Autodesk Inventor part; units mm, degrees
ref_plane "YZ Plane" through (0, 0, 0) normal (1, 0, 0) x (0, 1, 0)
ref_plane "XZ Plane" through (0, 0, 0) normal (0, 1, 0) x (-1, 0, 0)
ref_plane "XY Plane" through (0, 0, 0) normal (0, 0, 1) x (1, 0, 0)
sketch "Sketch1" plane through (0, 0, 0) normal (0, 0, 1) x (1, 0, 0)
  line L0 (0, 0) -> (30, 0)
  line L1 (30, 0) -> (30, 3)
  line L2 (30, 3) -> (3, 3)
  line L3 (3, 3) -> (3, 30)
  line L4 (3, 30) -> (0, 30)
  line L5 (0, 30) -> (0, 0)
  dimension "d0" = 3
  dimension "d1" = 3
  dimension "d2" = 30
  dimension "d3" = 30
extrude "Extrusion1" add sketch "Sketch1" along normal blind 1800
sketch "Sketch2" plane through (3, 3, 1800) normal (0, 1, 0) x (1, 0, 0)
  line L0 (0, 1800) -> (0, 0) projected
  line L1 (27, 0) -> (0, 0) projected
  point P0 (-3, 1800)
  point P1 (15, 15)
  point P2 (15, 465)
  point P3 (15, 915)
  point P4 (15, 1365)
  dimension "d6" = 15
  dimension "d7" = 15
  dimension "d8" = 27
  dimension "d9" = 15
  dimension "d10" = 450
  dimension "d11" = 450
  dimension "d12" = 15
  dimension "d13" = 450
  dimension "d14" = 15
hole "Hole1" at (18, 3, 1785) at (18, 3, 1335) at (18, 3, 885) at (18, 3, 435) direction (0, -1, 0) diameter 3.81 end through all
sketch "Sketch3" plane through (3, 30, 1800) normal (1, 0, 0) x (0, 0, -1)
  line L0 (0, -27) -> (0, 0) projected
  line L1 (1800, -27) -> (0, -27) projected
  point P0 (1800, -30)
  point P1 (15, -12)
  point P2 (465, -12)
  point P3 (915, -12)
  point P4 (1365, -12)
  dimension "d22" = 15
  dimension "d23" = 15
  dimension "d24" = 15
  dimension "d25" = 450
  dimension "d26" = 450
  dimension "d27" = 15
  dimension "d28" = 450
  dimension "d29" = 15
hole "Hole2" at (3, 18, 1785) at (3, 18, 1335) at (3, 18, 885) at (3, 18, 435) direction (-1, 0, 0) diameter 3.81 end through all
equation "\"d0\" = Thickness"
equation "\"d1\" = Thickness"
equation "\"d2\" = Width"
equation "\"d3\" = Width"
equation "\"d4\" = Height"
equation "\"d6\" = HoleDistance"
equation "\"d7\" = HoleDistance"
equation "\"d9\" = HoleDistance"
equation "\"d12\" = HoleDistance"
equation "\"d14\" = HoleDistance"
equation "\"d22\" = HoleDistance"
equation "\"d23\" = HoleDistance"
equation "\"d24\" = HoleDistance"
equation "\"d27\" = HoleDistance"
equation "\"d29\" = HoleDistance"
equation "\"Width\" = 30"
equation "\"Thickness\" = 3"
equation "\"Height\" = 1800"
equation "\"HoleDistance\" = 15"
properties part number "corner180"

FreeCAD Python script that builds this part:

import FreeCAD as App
import Part
import Sketcher
Q = App.Units.Quantity


def add_polygon(sketch, points):
    """Adds a closed chain of lines whose ends are joined by coincident constraints."""
    first, n = sketch.GeometryCount, len(points)
    for a, b in zip(points, points[1:] + points[:1]):
        sketch.addGeometry(Part.LineSegment(App.Vector(*a, 0), App.Vector(*b, 0)), False)
    for i in range(n):
        sketch.addConstraint(Sketcher.Constraint("Coincident", first + i, 2, first + (i + 1) % n, 1))

doc = App.newDocument("Part")
body = doc.addObject("PartDesign::Body", "Body")

# Sketch on XY plane
sketch1 = body.newObject("Sketcher::SketchObject", "Sketch")
sketch1.AttachmentSupport = (doc.getObject("XY_Plane"), [""])
sketch1.MapMode = "FlatFace"
add_polygon(sketch1, [(0, 30), (0, 0), (30, 0), (30, 3), (3, 3), (3, 30)])  # lines 0-5
sketch1.addConstraint(Sketcher.Constraint("Vertical", 0))
sketch1.addConstraint(Sketcher.Constraint("Horizontal", 1))
sketch1.addConstraint(Sketcher.Constraint("Vertical", 2))
sketch1.addConstraint(Sketcher.Constraint("Horizontal", 3))
sketch1.addConstraint(Sketcher.Constraint("Vertical", 4))
sketch1.addConstraint(Sketcher.Constraint("Horizontal", 5))
sketch1.addConstraint(Sketcher.Constraint("Coincident", 0, 2, -1, 1))
sketch1.addConstraint(Sketcher.Constraint("Equal", 1, 0))
sketch1.addConstraint(Sketcher.Constraint("Equal", 5, 2))
sketch1.addConstraint(Sketcher.Constraint("DistanceX", 1, 1, 1, 2, Q("1.1811 in")))
sketch1.addConstraint(Sketcher.Constraint("DistanceX", 5, 2, 5, 1, Q("0.1181 in")))
pad1 = body.newObject("PartDesign::Pad", "Pad")
pad1.Profile = sketch1
pad1.Length = 1800

# Sketch on XZ plane
sketch2 = body.newObject("Sketcher::SketchObject", "Sketch001")
sketch2.AttachmentSupport = (doc.getObject("XZ_Plane"), [""])
sketch2.MapMode = "FlatFace"
sketch2.AttachmentOffset = App.Placement(App.Vector(0, 0, -0.1181102 * 25.4), App.Rotation())
sketch2.addGeometry(Part.Circle(App.Vector(18, 1785, 0), App.Vector(0, 0, 1), 1.9), False)
sketch2.addGeometry(Part.Circle(App.Vector(18, 1335, 0), App.Vector(0, 0, 1), 1.9), False)
sketch2.addGeometry(Part.Circle(App.Vector(18, 885, 0), App.Vector(0, 0, 1), 1.9), False)
sketch2.addGeometry(Part.Circle(App.Vector(18, 435, 0), App.Vector(0, 0, 1), 1.9), False)
sketch2.addConstraint(Sketcher.Constraint("Equal", 0, 1))
sketch2.addConstraint(Sketcher.Constraint("Equal", 1, 2))
sketch2.addConstraint(Sketcher.Constraint("Equal", 2, 3))
sketch2.addConstraint(Sketcher.Constraint("Vertical", 0, 3, 1, 3))
sketch2.addConstraint(Sketcher.Constraint("Vertical", 1, 3, 2, 3))
sketch2.addConstraint(Sketcher.Constraint("Vertical", 2, 3, 3, 3))
sketch2.addConstraint(Sketcher.Constraint("Diameter", 0, Q("0.15 in")))
sketch2.addConstraint(Sketcher.Constraint("DistanceY", -1, 1, 0, 3, Q("70.2756 in")))
sketch2.addConstraint(Sketcher.Constraint("DistanceY", 3, 3, 0, 3, Q("53.1496 in")))
sketch2.addConstraint(Sketcher.Constraint("DistanceX", -1, 1, 0, 3, 18.0))
sketch2.addConstraint(Sketcher.Constraint("DistanceY", -1, 1, 1, 3, 1335.0))
sketch2.addConstraint(Sketcher.Constraint("DistanceY", -1, 1, 2, 3, 885.0))
doc.recompute()
hole = body.newObject("PartDesign::Hole", "Hole")
hole.Profile = sketch2
hole.ThreadType = "None"
hole.Diameter = Q("0.15 in")
hole.DepthType = "ThroughAll"
hole.Reversed = True

# Sketch on YZ plane
sketch3 = body.newObject("Sketcher::SketchObject", "Sketch002")
sketch3.AttachmentSupport = (doc.getObject("YZ_Plane"), [""])
sketch3.MapMode = "FlatFace"
sketch3.AttachmentOffset = App.Placement(App.Vector(0, 0, 0.1181102 * 25.4), App.Rotation())
sketch3.addGeometry(Part.Circle(App.Vector(18, 1785, 0), App.Vector(0, 0, 1), 1.9), False)
sketch3.addGeometry(Part.Circle(App.Vector(18, 1335, 0), App.Vector(0, 0, 1), 1.9), False)
sketch3.addGeometry(Part.Circle(App.Vector(18, 885, 0), App.Vector(0, 0, 1), 1.9), False)
sketch3.addGeometry(Part.Circle(App.Vector(18, 435, 0), App.Vector(0, 0, 1), 1.9), False)
sketch3.addConstraint(Sketcher.Constraint("Equal", 0, 1))
sketch3.addConstraint(Sketcher.Constraint("Equal", 1, 2))
sketch3.addConstraint(Sketcher.Constraint("Equal", 2, 3))
sketch3.addConstraint(Sketcher.Constraint("Vertical", 0, 3, 1, 3))
sketch3.addConstraint(Sketcher.Constraint("Vertical", 1, 3, 2, 3))
sketch3.addConstraint(Sketcher.Constraint("Vertical", 2, 3, 3, 3))
sketch3.addConstraint(Sketcher.Constraint("Diameter", 0, Q("0.15 in")))
sketch3.addConstraint(Sketcher.Constraint("DistanceY", -1, 1, 0, 3, Q("70.2756 in")))
sketch3.addConstraint(Sketcher.Constraint("DistanceY", 3, 3, 0, 3, Q("53.1496 in")))
sketch3.addConstraint(Sketcher.Constraint("DistanceX", -1, 1, 0, 3, 18.0))
sketch3.addConstraint(Sketcher.Constraint("DistanceY", -1, 1, 1, 3, 1335.0))
sketch3.addConstraint(Sketcher.Constraint("DistanceY", -1, 1, 2, 3, 885.0))
doc.recompute()
hole2 = body.newObject("PartDesign::Hole", "Hole001")
hole2.Profile = sketch3
hole2.ThreadType = "None"
hole2.Diameter = Q("0.15 in")
hole2.DepthType = "ThroughAll"

doc.recompute()
